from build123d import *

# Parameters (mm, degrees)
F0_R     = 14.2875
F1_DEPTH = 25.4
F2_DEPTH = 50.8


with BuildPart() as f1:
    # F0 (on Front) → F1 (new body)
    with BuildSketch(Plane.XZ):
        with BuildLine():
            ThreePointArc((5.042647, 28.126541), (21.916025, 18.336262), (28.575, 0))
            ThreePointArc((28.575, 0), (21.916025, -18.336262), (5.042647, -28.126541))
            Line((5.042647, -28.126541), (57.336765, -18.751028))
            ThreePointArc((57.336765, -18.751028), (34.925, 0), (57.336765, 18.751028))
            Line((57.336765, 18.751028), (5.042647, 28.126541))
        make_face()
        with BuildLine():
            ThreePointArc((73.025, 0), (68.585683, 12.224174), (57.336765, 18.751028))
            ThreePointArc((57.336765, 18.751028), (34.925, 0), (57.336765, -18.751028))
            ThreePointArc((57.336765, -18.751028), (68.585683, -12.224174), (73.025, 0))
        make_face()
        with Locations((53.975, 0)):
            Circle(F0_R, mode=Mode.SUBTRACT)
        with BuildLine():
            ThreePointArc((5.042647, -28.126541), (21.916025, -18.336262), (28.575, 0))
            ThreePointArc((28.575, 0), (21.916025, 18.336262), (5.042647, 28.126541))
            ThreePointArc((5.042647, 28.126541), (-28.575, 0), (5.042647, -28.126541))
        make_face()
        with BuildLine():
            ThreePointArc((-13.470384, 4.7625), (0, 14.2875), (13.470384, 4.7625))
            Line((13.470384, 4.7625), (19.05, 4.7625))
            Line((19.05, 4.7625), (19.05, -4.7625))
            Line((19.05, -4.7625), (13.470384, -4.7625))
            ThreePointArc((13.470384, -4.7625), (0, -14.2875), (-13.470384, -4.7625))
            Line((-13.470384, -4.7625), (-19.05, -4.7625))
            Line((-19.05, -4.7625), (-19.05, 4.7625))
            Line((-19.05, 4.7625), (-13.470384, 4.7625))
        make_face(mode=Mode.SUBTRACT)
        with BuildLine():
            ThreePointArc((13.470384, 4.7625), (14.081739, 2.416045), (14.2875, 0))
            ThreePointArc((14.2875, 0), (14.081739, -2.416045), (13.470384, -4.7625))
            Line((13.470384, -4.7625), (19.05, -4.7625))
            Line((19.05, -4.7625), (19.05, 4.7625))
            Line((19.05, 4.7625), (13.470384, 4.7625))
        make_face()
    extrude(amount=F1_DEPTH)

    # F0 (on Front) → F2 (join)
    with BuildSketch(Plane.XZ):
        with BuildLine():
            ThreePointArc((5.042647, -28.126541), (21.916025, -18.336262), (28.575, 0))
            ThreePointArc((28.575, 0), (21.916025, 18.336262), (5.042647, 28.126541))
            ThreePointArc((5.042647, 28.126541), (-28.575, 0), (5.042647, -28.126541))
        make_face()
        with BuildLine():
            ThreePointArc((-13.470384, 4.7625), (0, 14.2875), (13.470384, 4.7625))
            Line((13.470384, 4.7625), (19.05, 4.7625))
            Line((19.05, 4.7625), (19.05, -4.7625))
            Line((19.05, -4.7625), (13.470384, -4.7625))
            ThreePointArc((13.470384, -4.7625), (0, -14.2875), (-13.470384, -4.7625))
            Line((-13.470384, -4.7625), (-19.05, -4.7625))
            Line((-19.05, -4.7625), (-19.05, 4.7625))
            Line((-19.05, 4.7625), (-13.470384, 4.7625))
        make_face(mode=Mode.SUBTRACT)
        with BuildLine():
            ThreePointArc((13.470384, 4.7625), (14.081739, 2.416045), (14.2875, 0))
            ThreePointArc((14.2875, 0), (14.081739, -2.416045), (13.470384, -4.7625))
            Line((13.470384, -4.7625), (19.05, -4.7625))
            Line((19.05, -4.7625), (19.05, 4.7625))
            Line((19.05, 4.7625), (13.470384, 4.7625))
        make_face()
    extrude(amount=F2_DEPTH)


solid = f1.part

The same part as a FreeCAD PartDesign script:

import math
import FreeCAD as App
import Part
import Sketcher
Q = App.Units.Quantity

doc = App.newDocument("Part")
body = doc.addObject("PartDesign::Body", "Body")

# Sketch on XZ plane
sketch1 = doc.addObject("Sketcher::SketchObject", "Sketch")
body.addObject(sketch1)
sketch1.AttachmentSupport = (doc.XZ_Plane, [""])
sketch1.MapMode = "FlatFace"
sketch1.addGeometry([
    Part.LineSegment(App.Vector(57.336765, 18.751028, 0), App.Vector(5.042647, 28.126541, 0)),  # 0
    Part.ArcOfCircle(Part.Circle(App.Vector(0, 0, 0), App.Vector(0, 0, 1), 28.575), math.radians(79.835751), math.radians(280.164249)),  # 1
    Part.LineSegment(App.Vector(5.042647, -28.126541, 0), App.Vector(57.336765, -18.751028, 0)),  # 2
    Part.ArcOfCircle(Part.Circle(App.Vector(53.974998, 0.000001, 0), App.Vector(0, 0, 1), 19.050002), math.radians(-79.835746), math.radians(-0.000004)),  # 3
    Part.ArcOfCircle(Part.Circle(App.Vector(53.974998, -0.000001, 0), App.Vector(0, 0, 1), 19.050002), math.radians(0.000004), math.radians(79.835746)),  # 4
    Part.LineSegment(App.Vector(-19.05, 4.7625, 0), App.Vector(-13.470384, 4.7625, 0)),  # 5
    Part.ArcOfCircle(Part.Circle(App.Vector(0, 0, 0), App.Vector(0, 0, 1), 14.2875), math.radians(19.47122), math.radians(160.52878)),  # 6
    Part.ArcOfCircle(Part.Circle(App.Vector(-0.000017, -0.000003, 0), App.Vector(0, 0, 1), 14.287517), math.radians(0.000014), math.radians(19.471211)),  # 7
    Part.ArcOfCircle(Part.Circle(App.Vector(-0.000017, 0.000003, 0), App.Vector(0, 0, 1), 14.287517), math.radians(-19.471211), math.radians(-0.000014)),  # 8
    Part.ArcOfCircle(Part.Circle(App.Vector(0, 0, 0), App.Vector(0, 0, 1), 14.2875), math.radians(-160.52878), math.radians(-19.47122)),  # 9
    Part.LineSegment(App.Vector(-13.470384, -4.7625, 0), App.Vector(-19.05, -4.7625, 0)),  # 10
    Part.LineSegment(App.Vector(-19.05, -4.7625, 0), App.Vector(-19.05, 4.7625, 0)),  # 11
    Part.Circle(App.Vector(53.975, 0, 0), App.Vector(0, 0, 1), 14.2875),  # 12
], False)
sketch1.addConstraint([
    Sketcher.Constraint("Tangent", 0, 2, 1, 1),
    Sketcher.Constraint("Tangent", 1, 2, 2, 1),
    Sketcher.Constraint("Tangent", 2, 2, 3, 1),
    Sketcher.Constraint("Tangent", 3, 2, 4, 1),
    Sketcher.Constraint("Tangent", 4, 2, 0, 1),
    Sketcher.Constraint("Coincident", 5, 2, 6, 2),
    Sketcher.Constraint("Tangent", 6, 1, 7, 2),
    Sketcher.Constraint("Tangent", 7, 1, 8, 2),
    Sketcher.Constraint("Tangent", 8, 1, 9, 2),
    Sketcher.Constraint("Coincident", 9, 1, 10, 1),
    Sketcher.Constraint("Coincident", 10, 2, 11, 1),
    Sketcher.Constraint("Coincident", 11, 2, 5, 1),
    Sketcher.Constraint("Horizontal", 5),
    Sketcher.Constraint("Horizontal", 10),
    Sketcher.Constraint("Vertical", 11),
    Sketcher.Constraint("Coincident", 1, 3, -1, 1),
    Sketcher.Constraint("Coincident", 6, 3, -1, 1),
    Sketcher.Constraint("Coincident", 9, 3, -1, 1),
    Sketcher.Constraint("Coincident", 12, 3, 3, 3),
    Sketcher.Constraint("Equal", 3, 4),
    Sketcher.Constraint("Equal", 7, 8),
    Sketcher.Constraint("Equal", 9, 12),
    Sketcher.Constraint("PointOnObject", 3, 3, -1),
    Sketcher.Constraint("PointOnObject", 3, 2, -1),
    Sketcher.Constraint("PointOnObject", 7, 1, -1),
    Sketcher.Constraint("Horizontal", 5, 2, 6, 1),
    Sketcher.Constraint("Horizontal", 8, 1, 9, 1),
    Sketcher.Constraint("Vertical", 6, 1, 8, 1),
    Sketcher.Constraint("Radius", 3, Q("0.7500001 in")),
    Sketcher.Constraint("Diameter", 12, Q("1.125 in")),
    Sketcher.Constraint("Radius", 1, Q("1.125 in")),
    Sketcher.Constraint("DistanceY", 11, 1, 11, 2, Q("0.375 in")),
    Sketcher.Constraint("DistanceX", 10, 2, -1, 1, Q("0.75 in")),
    Sketcher.Constraint("DistanceX", -1, 1, 3, 3, Q("2.1249999 in")),
])
pad1 = doc.addObject("PartDesign::Pad", "Pad")
body.addObject(pad1)
pad1.Profile = sketch1
pad1.Length = Q("1 in")

# Sketch on XZ plane
sketch2 = doc.addObject("Sketcher::SketchObject", "Sketch001")
body.addObject(sketch2)
sketch2.AttachmentSupport = (doc.XZ_Plane, [""])
sketch2.MapMode = "FlatFace"
sketch2.addGeometry([
    Part.ArcOfCircle(Part.Circle(App.Vector(0.000003, -0.000002, 0), App.Vector(0, 0, 1), 28.574997), math.radians(-79.835756), math.radians(0.000004)),  # 0
    Part.ArcOfCircle(Part.Circle(App.Vector(0.000003, 0.000002, 0), App.Vector(0, 0, 1), 28.574997), math.radians(-0.000004), math.radians(79.835756)),  # 1
    Part.ArcOfCircle(Part.Circle(App.Vector(0, 0, 0), App.Vector(0, 0, 1), 28.575), math.radians(79.835751), math.radians(280.164249)),  # 2
    Part.LineSegment(App.Vector(-19.05, 4.7625, 0), App.Vector(-13.470384, 4.7625, 0)),  # 3
    Part.ArcOfCircle(Part.Circle(App.Vector(0, 0, 0), App.Vector(0, 0, 1), 14.2875), math.radians(19.47122), math.radians(160.52878)),  # 4
    Part.ArcOfCircle(Part.Circle(App.Vector(-0.000017, -0.000003, 0), App.Vector(0, 0, 1), 14.287517), math.radians(0.000014), math.radians(19.471211)),  # 5
    Part.ArcOfCircle(Part.Circle(App.Vector(-0.000017, 0.000003, 0), App.Vector(0, 0, 1), 14.287517), math.radians(-19.471211), math.radians(-0.000014)),  # 6
    Part.ArcOfCircle(Part.Circle(App.Vector(0, 0, 0), App.Vector(0, 0, 1), 14.2875), math.radians(-160.52878), math.radians(-19.47122)),  # 7
    Part.LineSegment(App.Vector(-13.470384, -4.7625, 0), App.Vector(-19.05, -4.7625, 0)),  # 8
    Part.LineSegment(App.Vector(-19.05, -4.7625, 0), App.Vector(-19.05, 4.7625, 0)),  # 9
], False)
sketch2.addConstraint([
    Sketcher.Constraint("Tangent", 0, 2, 1, 1),
    Sketcher.Constraint("Tangent", 1, 2, 2, 1),
    Sketcher.Constraint("Tangent", 2, 2, 0, 1),
    Sketcher.Constraint("Coincident", 3, 2, 4, 2),
    Sketcher.Constraint("Tangent", 4, 1, 5, 2),
    Sketcher.Constraint("Tangent", 5, 1, 6, 2),
    Sketcher.Constraint("Tangent", 6, 1, 7, 2),
    Sketcher.Constraint("Coincident", 7, 1, 8, 1),
    Sketcher.Constraint("Coincident", 8, 2, 9, 1),
    Sketcher.Constraint("Coincident", 9, 2, 3, 1),
    Sketcher.Constraint("Horizontal", 3),
    Sketcher.Constraint("Horizontal", 8),
    Sketcher.Constraint("Vertical", 9),
    Sketcher.Constraint("Coincident", 0, 3, -1, 1),
    Sketcher.Constraint("Coincident", 4, 3, -1, 1),
    Sketcher.Constraint("Coincident", 7, 3, -1, 1),
    Sketcher.Constraint("Equal", 5, 6),
    Sketcher.Constraint("PointOnObject", 0, 2, -1),
    Sketcher.Constraint("PointOnObject", 5, 1, -1),
    Sketcher.Constraint("Horizontal", 3, 2, 4, 1),
    Sketcher.Constraint("Horizontal", 6, 1, 7, 1),
    Sketcher.Constraint("Vertical", 1, 2, 2, 2),
    Sketcher.Constraint("Vertical", 4, 1, 6, 1),
    Sketcher.Constraint("Radius", 0, Q("1.1249999 in")),
    Sketcher.Constraint("Radius", 4, Q("0.5625 in")),
    Sketcher.Constraint("DistanceY", 9, 1, 9, 2, Q("0.375 in")),
    Sketcher.Constraint("DistanceX", 8, 2, -1, 1, Q("0.75 in")),
    Sketcher.Constraint("DistanceY", -1, 1, 1, 2, Q("28.126541 mm")),
])
pad2 = doc.addObject("PartDesign::Pad", "Pad001")
body.addObject(pad2)
pad2.Profile = sketch2
pad2.Length = Q("2 in")

doc.recompute()
